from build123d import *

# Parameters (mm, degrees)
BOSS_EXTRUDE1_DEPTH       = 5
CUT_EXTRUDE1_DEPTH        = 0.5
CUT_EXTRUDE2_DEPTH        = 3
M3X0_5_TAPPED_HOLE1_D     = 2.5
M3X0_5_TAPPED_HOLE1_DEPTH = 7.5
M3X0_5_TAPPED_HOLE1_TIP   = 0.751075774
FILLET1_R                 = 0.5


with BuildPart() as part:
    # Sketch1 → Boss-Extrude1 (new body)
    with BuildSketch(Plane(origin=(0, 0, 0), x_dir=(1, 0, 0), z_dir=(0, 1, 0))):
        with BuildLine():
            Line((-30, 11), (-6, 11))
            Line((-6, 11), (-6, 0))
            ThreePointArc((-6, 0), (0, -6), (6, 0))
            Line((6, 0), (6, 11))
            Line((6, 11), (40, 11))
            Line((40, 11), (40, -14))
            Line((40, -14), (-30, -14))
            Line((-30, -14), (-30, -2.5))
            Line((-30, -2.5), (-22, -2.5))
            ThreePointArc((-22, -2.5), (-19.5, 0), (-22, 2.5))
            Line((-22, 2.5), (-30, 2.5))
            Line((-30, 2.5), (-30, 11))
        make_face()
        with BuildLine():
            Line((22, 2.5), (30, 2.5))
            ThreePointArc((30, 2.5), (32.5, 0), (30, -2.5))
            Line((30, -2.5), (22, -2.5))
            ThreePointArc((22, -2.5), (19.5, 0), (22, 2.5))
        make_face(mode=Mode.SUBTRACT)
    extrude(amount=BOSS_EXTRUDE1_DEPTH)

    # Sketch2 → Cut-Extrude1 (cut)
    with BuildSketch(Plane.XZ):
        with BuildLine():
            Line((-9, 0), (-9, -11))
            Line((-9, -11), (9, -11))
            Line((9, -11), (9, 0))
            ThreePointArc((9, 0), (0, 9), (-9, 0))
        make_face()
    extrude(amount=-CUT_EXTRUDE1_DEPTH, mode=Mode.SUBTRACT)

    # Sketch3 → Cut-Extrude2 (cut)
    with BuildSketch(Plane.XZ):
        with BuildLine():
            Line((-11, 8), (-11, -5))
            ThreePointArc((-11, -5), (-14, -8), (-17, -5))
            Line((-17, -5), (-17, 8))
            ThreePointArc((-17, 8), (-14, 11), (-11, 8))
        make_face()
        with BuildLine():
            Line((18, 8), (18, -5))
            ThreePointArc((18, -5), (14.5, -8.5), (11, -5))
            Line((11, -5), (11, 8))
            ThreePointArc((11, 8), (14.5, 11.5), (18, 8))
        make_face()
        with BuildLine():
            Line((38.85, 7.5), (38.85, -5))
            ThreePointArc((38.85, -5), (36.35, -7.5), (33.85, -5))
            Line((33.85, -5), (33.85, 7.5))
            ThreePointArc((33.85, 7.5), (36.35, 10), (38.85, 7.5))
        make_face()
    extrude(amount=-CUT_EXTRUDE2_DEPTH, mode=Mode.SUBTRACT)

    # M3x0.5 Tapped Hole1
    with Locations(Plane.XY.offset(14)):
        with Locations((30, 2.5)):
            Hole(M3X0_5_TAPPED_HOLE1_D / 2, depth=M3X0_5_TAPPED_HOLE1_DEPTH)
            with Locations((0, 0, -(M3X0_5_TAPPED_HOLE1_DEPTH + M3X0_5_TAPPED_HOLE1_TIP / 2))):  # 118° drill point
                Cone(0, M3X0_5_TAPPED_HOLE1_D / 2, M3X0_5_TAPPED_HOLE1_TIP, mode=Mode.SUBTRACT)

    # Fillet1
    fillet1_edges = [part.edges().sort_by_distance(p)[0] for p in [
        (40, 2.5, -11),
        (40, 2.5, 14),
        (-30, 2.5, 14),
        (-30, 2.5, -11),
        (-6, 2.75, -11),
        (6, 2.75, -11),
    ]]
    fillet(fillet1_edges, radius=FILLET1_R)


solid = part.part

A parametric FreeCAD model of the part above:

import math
import FreeCAD as App
import Part
import Sketcher
Q = App.Units.Quantity


def edges_at(feature, points):
    """Names of the edges that pass closest to the given points."""
    edges = feature.Shape.Edges
    near = lambda p: min(range(len(edges)), key=lambda i: edges[i].distToShape(Part.Vertex(*p))[0])
    return sorted({f"Edge{near(p) + 1}" for p in points})

doc = App.newDocument("Part")
body = doc.addObject("PartDesign::Body", "Body")

# Sketch on XZ plane
sketch1 = body.newObject("Sketcher::SketchObject", "Sketch")
sketch1.AttachmentSupport = (doc.getObject("XZ_Plane"), [""])
sketch1.MapMode = "FlatFace"
sketch1.addGeometry(Part.LineSegment(App.Vector(-6, -11, 0), App.Vector(-30, -11, 0)), False)
sketch1.addGeometry(Part.LineSegment(App.Vector(-30, -11, 0), App.Vector(-30, -2.5, 0)), False)
sketch1.addGeometry(Part.LineSegment(App.Vector(-30, -2.5, 0), App.Vector(-22, -2.5, 0)), False)
sketch1.addGeometry(Part.ArcOfCircle(Part.Circle(App.Vector(-22, 0, 0), App.Vector(0, 0, 1), 2.5), math.radians(-90), math.radians(90)), False)
sketch1.addGeometry(Part.LineSegment(App.Vector(-22, 2.5, 0), App.Vector(-30, 2.5, 0)), False)
sketch1.addGeometry(Part.LineSegment(App.Vector(-30, 2.5, 0), App.Vector(-30, 14, 0)), False)
sketch1.addGeometry(Part.LineSegment(App.Vector(-30, 14, 0), App.Vector(40, 14, 0)), False)
sketch1.addGeometry(Part.LineSegment(App.Vector(40, 14, 0), App.Vector(40, -11, 0)), False)
sketch1.addGeometry(Part.LineSegment(App.Vector(40, -11, 0), App.Vector(6, -11, 0)), False)
sketch1.addGeometry(Part.LineSegment(App.Vector(6, -11, 0), App.Vector(6, 0, 0)), False)
sketch1.addGeometry(Part.ArcOfCircle(Part.Circle(App.Vector(0, 0, 0), App.Vector(0, 0, 1), 6), math.radians(0), math.radians(180)), False)
sketch1.addGeometry(Part.LineSegment(App.Vector(-6, 0, 0), App.Vector(-6, -11, 0)), False)
sketch1.addGeometry(Part.LineSegment(App.Vector(22, -2.5, 0), App.Vector(30, -2.5, 0)), False)
sketch1.addGeometry(Part.ArcOfCircle(Part.Circle(App.Vector(30, 0, 0), App.Vector(0, 0, 1), 2.5), math.radians(-90), math.radians(90)), False)
sketch1.addGeometry(Part.LineSegment(App.Vector(30, 2.5, 0), App.Vector(22, 2.5, 0)), False)
sketch1.addGeometry(Part.ArcOfCircle(Part.Circle(App.Vector(22, 0, 0), App.Vector(0, 0, 1), 2.5), math.radians(90), math.radians(270)), False)
sketch1.addConstraint(Sketcher.Constraint("Coincident", 0, 2, 1, 1))
sketch1.addConstraint(Sketcher.Constraint("Coincident", 1, 2, 2, 1))
sketch1.addConstraint(Sketcher.Constraint("Tangent", 2, 2, 3, 1))
sketch1.addConstraint(Sketcher.Constraint("Tangent", 3, 2, 4, 1))
sketch1.addConstraint(Sketcher.Constraint("Coincident", 4, 2, 5, 1))
sketch1.addConstraint(Sketcher.Constraint("Coincident", 5, 2, 6, 1))
sketch1.addConstraint(Sketcher.Constraint("Coincident", 6, 2, 7, 1))
sketch1.addConstraint(Sketcher.Constraint("Coincident", 7, 2, 8, 1))
sketch1.addConstraint(Sketcher.Constraint("Coincident", 8, 2, 9, 1))
sketch1.addConstraint(Sketcher.Constraint("Tangent", 9, 2, 10, 1))
sketch1.addConstraint(Sketcher.Constraint("Tangent", 10, 2, 11, 1))
sketch1.addConstraint(Sketcher.Constraint("Coincident", 11, 2, 0, 1))
sketch1.addConstraint(Sketcher.Constraint("Tangent", 12, 2, 13, 1))
sketch1.addConstraint(Sketcher.Constraint("Tangent", 13, 2, 14, 1))
sketch1.addConstraint(Sketcher.Constraint("Tangent", 14, 2, 15, 1))
sketch1.addConstraint(Sketcher.Constraint("Tangent", 15, 2, 12, 1))
sketch1.addConstraint(Sketcher.Constraint("Horizontal", 0))
sketch1.addConstraint(Sketcher.Constraint("Vertical", 1))
sketch1.addConstraint(Sketcher.Constraint("Horizontal", 2))
sketch1.addConstraint(Sketcher.Constraint("Horizontal", 4))
sketch1.addConstraint(Sketcher.Constraint("Vertical", 5))
sketch1.addConstraint(Sketcher.Constraint("Horizontal", 6))
sketch1.addConstraint(Sketcher.Constraint("Vertical", 7))
sketch1.addConstraint(Sketcher.Constraint("Horizontal", 8))
sketch1.addConstraint(Sketcher.Constraint("Vertical", 9))
sketch1.addConstraint(Sketcher.Constraint("Vertical", 11))
sketch1.addConstraint(Sketcher.Constraint("Horizontal", 12))
sketch1.addConstraint(Sketcher.Constraint("Horizontal", 14))
sketch1.addConstraint(Sketcher.Constraint("Coincident", 10, 3, -1, 1))
sketch1.addConstraint(Sketcher.Constraint("Equal", 3, 13))
sketch1.addConstraint(Sketcher.Constraint("Symmetric", 3, 3, 15, 3, -1, 1))
sketch1.addConstraint(Sketcher.Constraint("Symmetric", 1, 2, 12, 2, -2))
sketch1.addConstraint(Sketcher.Constraint("Horizontal", 0, 2, 7, 2))
sketch1.addConstraint(Sketcher.Constraint("Vertical", 1, 2, 4, 2))
sketch1.addConstraint(Sketcher.Constraint("Radius", 10, Q("6 mm")))
sketch1.addConstraint(Sketcher.Constraint("Radius", 3, Q("2.5 mm")))
sketch1.addConstraint(Sketcher.Constraint("DistanceX", 0, 2, 0, 1, Q("24 mm")))
sketch1.addConstraint(Sketcher.Constraint("DistanceX", 2, 1, 2, 2, Q("8 mm")))
sketch1.addConstraint(Sketcher.Constraint("DistanceX", 6, 1, 6, 2, Q("70 mm")))
sketch1.addConstraint(Sketcher.Constraint("DistanceY", 7, 2, 7, 1, Q("25 mm")))
sketch1.addConstraint(Sketcher.Constraint("DistanceY", 9, 1, 9, 2, Q("11 mm")))
pad1 = body.newObject("PartDesign::Pad", "Pad")
pad1.Profile = sketch1
pad1.Length = 5
pad1.Reversed = True

# Sketch on XZ plane
sketch2 = body.newObject("Sketcher::SketchObject", "Sketch001")
sketch2.AttachmentSupport = (doc.getObject("XZ_Plane"), [""])
sketch2.MapMode = "FlatFace"
sketch2.addGeometry(Part.LineSegment(App.Vector(-9, 0, 0), App.Vector(-9, -11, 0)), False)
sketch2.addGeometry(Part.LineSegment(App.Vector(-9, -11, 0), App.Vector(9, -11, 0)), False)
sketch2.addGeometry(Part.LineSegment(App.Vector(9, -11, 0), App.Vector(9, 0, 0)), False)
sketch2.addGeometry(Part.ArcOfCircle(Part.Circle(App.Vector(0, 0, 0), App.Vector(0, 0, 1), 9), math.radians(0), math.radians(180)), False)
sketch2.addConstraint(Sketcher.Constraint("Coincident", 0, 2, 1, 1))
sketch2.addConstraint(Sketcher.Constraint("Coincident", 1, 2, 2, 1))
sketch2.addConstraint(Sketcher.Constraint("Tangent", 2, 2, 3, 1))
sketch2.addConstraint(Sketcher.Constraint("Tangent", 3, 2, 0, 1))
sketch2.addConstraint(Sketcher.Constraint("Vertical", 0))
sketch2.addConstraint(Sketcher.Constraint("Horizontal", 1))
sketch2.addConstraint(Sketcher.Constraint("Vertical", 2))
sketch2.addConstraint(Sketcher.Constraint("Coincident", 3, 3, -1, 1))
sketch2.addConstraint(Sketcher.Constraint("Radius", 3, Q("9 mm")))
sketch2.addConstraint(Sketcher.Constraint("DistanceY", 0, 2, 0, 1, Q("11 mm")))
pocket1 = body.newObject("PartDesign::Pocket", "Pocket")
pocket1.Profile = sketch2
pocket1.Length = 0.5

# Sketch on XZ plane
sketch3 = body.newObject("Sketcher::SketchObject", "Sketch002")
sketch3.AttachmentSupport = (doc.getObject("XZ_Plane"), [""])
sketch3.MapMode = "FlatFace"
sketch3.addGeometry(Part.LineSegment(App.Vector(-11, -5, 0), App.Vector(-11, 8, 0)), False)
sketch3.addGeometry(Part.ArcOfCircle(Part.Circle(App.Vector(-14, 8, 0), App.Vector(0, 0, 1), 3), math.radians(0), math.radians(180)), False)
sketch3.addGeometry(Part.LineSegment(App.Vector(-17, 8, 0), App.Vector(-17, -5, 0)), False)
sketch3.addGeometry(Part.ArcOfCircle(Part.Circle(App.Vector(-14, -5, 0), App.Vector(0, 0, 1), 3), math.radians(180), math.radians(360)), False)
sketch3.addGeometry(Part.LineSegment(App.Vector(18, -5, 0), App.Vector(18, 8, 0)), False)
sketch3.addGeometry(Part.ArcOfCircle(Part.Circle(App.Vector(14.5, 8, 0), App.Vector(0, 0, 1), 3.5), math.radians(0), math.radians(180)), False)
sketch3.addGeometry(Part.LineSegment(App.Vector(11, 8, 0), App.Vector(11, -5, 0)), False)
sketch3.addGeometry(Part.ArcOfCircle(Part.Circle(App.Vector(14.5, -5, 0), App.Vector(0, 0, 1), 3.5), math.radians(180), math.radians(360)), False)
sketch3.addGeometry(Part.LineSegment(App.Vector(38.85, -5, 0), App.Vector(38.85, 7.5, 0)), False)
sketch3.addGeometry(Part.ArcOfCircle(Part.Circle(App.Vector(36.35, 7.5, 0), App.Vector(0, 0, 1), 2.5), math.radians(0), math.radians(180)), False)
sketch3.addGeometry(Part.LineSegment(App.Vector(33.85, 7.5, 0), App.Vector(33.85, -5, 0)), False)
sketch3.addGeometry(Part.ArcOfCircle(Part.Circle(App.Vector(36.35, -5, 0), App.Vector(0, 0, 1), 2.5), math.radians(180), math.radians(360)), False)
sketch3.addConstraint(Sketcher.Constraint("Tangent", 0, 2, 1, 1))
sketch3.addConstraint(Sketcher.Constraint("Tangent", 1, 2, 2, 1))
sketch3.addConstraint(Sketcher.Constraint("Tangent", 2, 2, 3, 1))
sketch3.addConstraint(Sketcher.Constraint("Tangent", 3, 2, 0, 1))
sketch3.addConstraint(Sketcher.Constraint("Tangent", 4, 2, 5, 1))
sketch3.addConstraint(Sketcher.Constraint("Tangent", 5, 2, 6, 1))
sketch3.addConstraint(Sketcher.Constraint("Tangent", 6, 2, 7, 1))
sketch3.addConstraint(Sketcher.Constraint("Tangent", 7, 2, 4, 1))
sketch3.addConstraint(Sketcher.Constraint("Tangent", 8, 2, 9, 1))
sketch3.addConstraint(Sketcher.Constraint("Tangent", 9, 2, 10, 1))
sketch3.addConstraint(Sketcher.Constraint("Tangent", 10, 2, 11, 1))
sketch3.addConstraint(Sketcher.Constraint("Tangent", 11, 2, 8, 1))
sketch3.addConstraint(Sketcher.Constraint("Vertical", 0))
sketch3.addConstraint(Sketcher.Constraint("Vertical", 2))
sketch3.addConstraint(Sketcher.Constraint("Vertical", 4))
sketch3.addConstraint(Sketcher.Constraint("Vertical", 6))
sketch3.addConstraint(Sketcher.Constraint("Vertical", 8))
sketch3.addConstraint(Sketcher.Constraint("Vertical", 10))
sketch3.addConstraint(Sketcher.Constraint("Symmetric", 0, 2, 5, 2, -2))
sketch3.addConstraint(Sketcher.Constraint("Horizontal", 3, 3, 7, 3))
sketch3.addConstraint(Sketcher.Constraint("Horizontal", 7, 3, 11, 3))
sketch3.addConstraint(Sketcher.Constraint("Radius", 1, Q("3 mm")))
sketch3.addConstraint(Sketcher.Constraint("Radius", 5, Q("3.5 mm")))
sketch3.addConstraint(Sketcher.Constraint("Radius", 9, Q("2.5 mm")))
sketch3.addConstraint(Sketcher.Constraint("DistanceY", 0, 1, 0, 2, Q("13 mm")))
sketch3.addConstraint(Sketcher.Constraint("DistanceY", 8, 1, 8, 2, Q("12.5 mm")))
sketch3.addConstraint(Sketcher.Constraint("DistanceX", 1, 3, -1, 1, Q("14 mm")))
sketch3.addConstraint(Sketcher.Constraint("DistanceY", -1, 1, 1, 3, Q("8 mm")))
sketch3.addConstraint(Sketcher.Constraint("DistanceX", -1, 1, 9, 3, Q("36.35 mm")))
pocket2 = body.newObject("PartDesign::Pocket", "Pocket001")
pocket2.Profile = sketch3
pocket2.Length = 3

# Sketch on XY plane
sketch4 = body.newObject("Sketcher::SketchObject", "Sketch003")
sketch4.AttachmentSupport = (doc.getObject("XY_Plane"), [""])
sketch4.MapMode = "FlatFace"
sketch4.AttachmentOffset = App.Placement(App.Vector(0, 0, 14), App.Rotation())
sketch4.addGeometry(Part.Circle(App.Vector(30, 2.5, 0), App.Vector(0, 0, 1), 1.25), False)
sketch4.addConstraint(Sketcher.Constraint("Diameter", 0, Q("2.5 mm")))
sketch4.addConstraint(Sketcher.Constraint("DistanceX", -1, 1, 0, 3, Q("30 mm")))
sketch4.addConstraint(Sketcher.Constraint("DistanceY", -1, 1, 0, 3, Q("2.5 mm")))
doc.recompute()
hole = body.newObject("PartDesign::Hole", "Hole")
hole.Profile = sketch4
hole.ThreadType = "None"
hole.Diameter = 2.5
hole.DepthType = "Dimension"
hole.Depth = 7.5
hole.DrillPoint = "Angled"
hole.DrillPointAngle = 118
doc.recompute()

fillet = body.newObject("PartDesign::Fillet", "Fillet")
fillet.Base = (hole, edges_at(hole, [
    (40, 2.5, -11),
    (40, 2.5, 14),
    (-30, 2.5, 14),
    (-30, 2.5, -11),
    (-6, 2.75, -11),
    (6, 2.75, -11),
]))
fillet.Radius = 0.5

doc.recompute()
